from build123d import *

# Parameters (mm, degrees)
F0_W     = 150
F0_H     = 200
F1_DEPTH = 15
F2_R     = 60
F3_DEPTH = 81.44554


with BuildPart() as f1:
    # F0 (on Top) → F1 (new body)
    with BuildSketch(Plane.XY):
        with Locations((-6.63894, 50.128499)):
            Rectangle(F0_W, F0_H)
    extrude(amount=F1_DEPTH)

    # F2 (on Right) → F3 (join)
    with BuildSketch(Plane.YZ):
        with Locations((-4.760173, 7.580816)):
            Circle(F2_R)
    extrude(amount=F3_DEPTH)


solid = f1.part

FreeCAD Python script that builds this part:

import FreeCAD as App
import Part
import Sketcher
from FreeCAD import Vector
Q = App.Units.Quantity


def add_polygon(sketch, points):
    """Adds a closed chain of lines whose ends are joined by coincident constraints."""
    first, n = sketch.GeometryCount, len(points)
    for a, b in zip(points, points[1:] + points[:1]):
        sketch.addGeometry(Part.LineSegment(App.Vector(*a, 0), App.Vector(*b, 0)), False)
    for i in range(n):
        sketch.addConstraint(Sketcher.Constraint("Coincident", first + i, 2, first + (i + 1) % n, 1))

doc = App.newDocument("Part")
body = doc.addObject("PartDesign::Body", "Body")

# Sketch on XY plane
sketch1 = doc.addObject("Sketcher::SketchObject", "Sketch")
body.addObject(sketch1)
sketch1.AttachmentSupport = (doc.XY_Plane, [""])
sketch1.MapMode = "FlatFace"
add_polygon(sketch1, [(-82, 150), (-82, -50), (68, -50), (68, 150)])  # lines 0-3
sketch1.addConstraint(Sketcher.Constraint("Vertical", 0))
sketch1.addConstraint(Sketcher.Constraint("Horizontal", 1))
sketch1.addConstraint(Sketcher.Constraint("Vertical", 2))
sketch1.addConstraint(Sketcher.Constraint("Horizontal", 3))
sketch1.addConstraint(Sketcher.Constraint("DistanceX", 1, 1, 1, 2, Q("150 mm")))
sketch1.addConstraint(Sketcher.Constraint("DistanceY", 0, 2, 0, 1, Q("200 mm")))
sketch1.addConstraint(Sketcher.Constraint("DistanceY", 0, 2, -1, 1, Q("49.871501 mm")))
sketch1.addConstraint(Sketcher.Constraint("DistanceX", 0, 2, -1, 1, Q("81.63894 mm")))
pad1 = doc.addObject("PartDesign::Pad", "Pad")
body.addObject(pad1)
pad1.Profile = sketch1
pad1.Length = 15

# Sketch on YZ plane
sketch2 = doc.addObject("Sketcher::SketchObject", "Sketch001")
body.addObject(sketch2)
sketch2.AttachmentSupport = (doc.YZ_Plane, [""])
sketch2.MapMode = "FlatFace"
sketch2.addGeometry(Part.Circle(Vector(-5, 8, 0), Vector(0, 0, 1), 60), False)
sketch2.addConstraint(Sketcher.Constraint("Diameter", 0, Q("120 mm")))
sketch2.addConstraint(Sketcher.Constraint("DistanceX", 0, 3, -1, 1, Q("4.760173 mm")))
sketch2.addConstraint(Sketcher.Constraint("DistanceY", -1, 1, 0, 3, Q("7.580816 mm")))
pad2 = doc.addObject("PartDesign::Pad", "Pad001")
body.addObject(pad2)
pad2.Profile = sketch2
pad2.Length = 81.44554

doc.recompute()
